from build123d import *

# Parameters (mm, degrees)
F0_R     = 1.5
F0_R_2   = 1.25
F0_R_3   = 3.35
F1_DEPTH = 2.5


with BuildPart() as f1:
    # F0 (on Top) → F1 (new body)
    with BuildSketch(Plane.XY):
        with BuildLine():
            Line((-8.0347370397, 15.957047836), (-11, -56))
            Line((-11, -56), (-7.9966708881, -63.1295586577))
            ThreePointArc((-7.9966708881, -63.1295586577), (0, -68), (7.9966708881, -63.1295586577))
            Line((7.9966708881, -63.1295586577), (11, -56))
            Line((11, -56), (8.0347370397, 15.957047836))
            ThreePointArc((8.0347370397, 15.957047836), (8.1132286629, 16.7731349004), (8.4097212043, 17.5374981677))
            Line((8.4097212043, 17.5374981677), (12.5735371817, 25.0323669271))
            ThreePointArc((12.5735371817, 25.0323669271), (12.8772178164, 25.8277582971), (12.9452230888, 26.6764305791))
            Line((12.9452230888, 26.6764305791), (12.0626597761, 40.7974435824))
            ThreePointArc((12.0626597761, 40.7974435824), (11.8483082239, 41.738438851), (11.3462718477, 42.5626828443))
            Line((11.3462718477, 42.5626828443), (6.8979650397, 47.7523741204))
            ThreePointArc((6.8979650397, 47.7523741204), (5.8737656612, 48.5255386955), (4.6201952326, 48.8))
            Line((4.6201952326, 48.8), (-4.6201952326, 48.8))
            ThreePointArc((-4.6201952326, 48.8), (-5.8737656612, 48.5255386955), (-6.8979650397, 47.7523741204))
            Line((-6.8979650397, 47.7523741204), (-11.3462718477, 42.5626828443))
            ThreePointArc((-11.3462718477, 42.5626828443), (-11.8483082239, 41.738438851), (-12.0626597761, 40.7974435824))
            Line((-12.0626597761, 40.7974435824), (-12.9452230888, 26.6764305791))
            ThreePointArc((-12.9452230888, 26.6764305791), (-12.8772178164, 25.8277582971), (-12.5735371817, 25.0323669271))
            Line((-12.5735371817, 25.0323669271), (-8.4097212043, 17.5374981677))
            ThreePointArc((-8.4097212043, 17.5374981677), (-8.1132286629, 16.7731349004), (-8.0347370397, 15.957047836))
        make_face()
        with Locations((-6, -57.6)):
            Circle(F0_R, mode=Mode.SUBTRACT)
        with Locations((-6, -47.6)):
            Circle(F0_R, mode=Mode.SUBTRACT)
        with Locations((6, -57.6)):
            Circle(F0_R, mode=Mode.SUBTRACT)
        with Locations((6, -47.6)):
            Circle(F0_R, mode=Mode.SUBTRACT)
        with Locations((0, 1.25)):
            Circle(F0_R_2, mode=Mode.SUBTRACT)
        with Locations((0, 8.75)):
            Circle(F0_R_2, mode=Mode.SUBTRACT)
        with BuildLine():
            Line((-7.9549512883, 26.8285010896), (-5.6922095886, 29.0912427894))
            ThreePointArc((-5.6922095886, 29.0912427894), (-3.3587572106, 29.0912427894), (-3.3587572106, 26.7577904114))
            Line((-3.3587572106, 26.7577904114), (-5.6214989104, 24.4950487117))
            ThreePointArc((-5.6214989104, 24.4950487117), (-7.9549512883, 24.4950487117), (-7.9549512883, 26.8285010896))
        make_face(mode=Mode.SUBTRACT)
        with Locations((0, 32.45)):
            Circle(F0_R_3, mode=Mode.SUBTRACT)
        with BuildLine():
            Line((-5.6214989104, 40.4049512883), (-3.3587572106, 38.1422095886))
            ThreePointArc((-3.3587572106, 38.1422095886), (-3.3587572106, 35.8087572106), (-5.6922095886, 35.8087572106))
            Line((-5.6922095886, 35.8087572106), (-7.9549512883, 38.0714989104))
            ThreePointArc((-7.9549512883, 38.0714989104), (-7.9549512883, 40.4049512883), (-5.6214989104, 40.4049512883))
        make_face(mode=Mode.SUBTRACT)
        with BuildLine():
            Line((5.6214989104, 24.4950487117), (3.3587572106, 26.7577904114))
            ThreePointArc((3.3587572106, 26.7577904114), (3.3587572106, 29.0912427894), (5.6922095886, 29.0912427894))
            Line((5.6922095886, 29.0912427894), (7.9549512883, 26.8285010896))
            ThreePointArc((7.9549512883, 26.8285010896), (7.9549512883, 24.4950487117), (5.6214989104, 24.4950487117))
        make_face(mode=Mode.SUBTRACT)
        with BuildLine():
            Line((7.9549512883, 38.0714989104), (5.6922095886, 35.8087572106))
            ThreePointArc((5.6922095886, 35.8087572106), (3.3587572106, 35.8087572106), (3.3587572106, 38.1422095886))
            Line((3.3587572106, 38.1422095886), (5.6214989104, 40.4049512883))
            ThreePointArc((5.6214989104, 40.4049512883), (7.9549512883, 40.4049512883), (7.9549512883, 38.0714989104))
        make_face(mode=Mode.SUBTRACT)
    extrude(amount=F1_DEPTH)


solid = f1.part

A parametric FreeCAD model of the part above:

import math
import FreeCAD as App
import Part
import Sketcher
Q = App.Units.Quantity

doc = App.newDocument("Part")
params = doc.addObject("Spreadsheet::Sheet", "Params")
for row, (alias, value) in enumerate([
    ("sketch1_diameter", "3 mm"),
    ("sketch1_radius", "9 mm"),
    ("sketch1_radius2", "3 mm"),
    ("sketch1_diameter2", "2.5 mm"),
    ("sketch1_diameter3", "6.7 mm"),
    ("pad1_length", "2.5 mm"),
], start=1):
    params.set(f"A{row}", alias)
    params.set(f"B{row}", "=" + value)
    params.setAlias(f"B{row}", alias)

body = doc.addObject("PartDesign::Body", "Body")

sketch1 = body.newObject("Sketcher::SketchObject", "Sketch")
sketch1.AttachmentSupport = (doc.getObject("XY_Plane"), [""])
sketch1.MapMode = "FlatFace"
sketch1.addGeometry([
    Part.LineSegment(App.Vector(-8, 16, 0), App.Vector(-11, -56, 0)),
    Part.LineSegment(App.Vector(-11, -56, 0), App.Vector(-8, -63.1, 0)),
    Part.ArcOfCircle(Part.Circle(App.Vector(0, -59, 0), App.Vector(0, 0, 1), 9), math.radians(-153), math.radians(-27)),
    Part.LineSegment(App.Vector(8, -63.1, 0), App.Vector(11, -56, 0)),
    Part.LineSegment(App.Vector(11, -56, 0), App.Vector(8, 16, 0)),
    Part.ArcOfCircle(Part.Circle(App.Vector(11, 16.1, 0), App.Vector(0, 0, 1), 3), math.radians(151), math.radians(182)),
    Part.LineSegment(App.Vector(8.4, 17.5, 0), App.Vector(12.6, 25, 0)),
    Part.ArcOfCircle(Part.Circle(App.Vector(10, 26.5, 0), App.Vector(0, 0, 1), 3), math.radians(-29), math.radians(4)),
    Part.LineSegment(App.Vector(12.9, 26.7, 0), App.Vector(12.1, 40.8, 0)),
    Part.ArcOfCircle(Part.Circle(App.Vector(9.1, 40.6, 0), App.Vector(0, 0, 1), 3), math.radians(4), math.radians(41)),
    Part.LineSegment(App.Vector(11.3, 42.6, 0), App.Vector(6.9, 47.8, 0)),
    Part.ArcOfCircle(Part.Circle(App.Vector(4.6, 45.8, 0), App.Vector(0, 0, 1), 3), math.radians(41), math.radians(90)),
    Part.LineSegment(App.Vector(4.6, 48.8, 0), App.Vector(-4.6, 48.8, 0)),
    Part.ArcOfCircle(Part.Circle(App.Vector(-4.6, 45.8, 0), App.Vector(0, 0, 1), 3), math.radians(90), math.radians(139)),
    Part.LineSegment(App.Vector(-6.9, 47.8, 0), App.Vector(-11.3, 42.6, 0)),
    Part.ArcOfCircle(Part.Circle(App.Vector(-9.1, 40.6, 0), App.Vector(0, 0, 1), 3), math.radians(139), math.radians(176)),
    Part.LineSegment(App.Vector(-12.1, 40.8, 0), App.Vector(-12.9, 26.7, 0)),
    Part.ArcOfCircle(Part.Circle(App.Vector(-10, 26.5, 0), App.Vector(0, 0, 1), 3), math.radians(176), math.radians(209)),
    Part.LineSegment(App.Vector(-12.6, 25, 0), App.Vector(-8.4, 17.5, 0)),
    Part.ArcOfCircle(Part.Circle(App.Vector(-11, 16.1, 0), App.Vector(0, 0, 1), 3), math.radians(-2), math.radians(29)),
    Part.Circle(App.Vector(-6, -57.6, 0), App.Vector(0, 0, 1), 1.5),
    Part.Circle(App.Vector(-6, -47.6, 0), App.Vector(0, 0, 1), 1.5),
    Part.Circle(App.Vector(6, -57.6, 0), App.Vector(0, 0, 1), 1.5),
    Part.Circle(App.Vector(6, -47.6, 0), App.Vector(0, 0, 1), 1.5),
    Part.ArcOfCircle(Part.Circle(App.Vector(-6.8, 25.7, 0), App.Vector(0, 0, 1), 1.6), math.radians(135), math.radians(315)),
    Part.LineSegment(App.Vector(-8, 26.8, 0), App.Vector(-5.7, 29.1, 0)),
    Part.ArcOfCircle(Part.Circle(App.Vector(-4.5, 27.9, 0), App.Vector(0, 0, 1), 1.6), math.radians(-45), math.radians(135)),
    Part.LineSegment(App.Vector(-3.4, 26.8, 0), App.Vector(-5.6, 24.5, 0)),
    Part.ArcOfCircle(Part.Circle(App.Vector(-6.8, 39.2, 0), App.Vector(0, 0, 1), 1.6), math.radians(45), math.radians(225)),
    Part.LineSegment(App.Vector(-5.6, 40.4, 0), App.Vector(-3.4, 38.1, 0)),
    Part.ArcOfCircle(Part.Circle(App.Vector(-4.5, 37, 0), App.Vector(0, 0, 1), 1.6), math.radians(-135), math.radians(45)),
    Part.LineSegment(App.Vector(-5.7, 35.8, 0), App.Vector(-8, 38.1, 0)),
    Part.Circle(App.Vector(0, 1.2, 0), App.Vector(0, 0, 1), 1.2),
    Part.Circle(App.Vector(0, 8.8, 0), App.Vector(0, 0, 1), 1.2),
    Part.Circle(App.Vector(0, 32.5, 0), App.Vector(0, 0, 1), 3.4),
    Part.ArcOfCircle(Part.Circle(App.Vector(6.8, 25.7, 0), App.Vector(0, 0, 1), 1.6), math.radians(-135), math.radians(45)),
    Part.LineSegment(App.Vector(5.6, 24.5, 0), App.Vector(3.4, 26.8, 0)),
    Part.ArcOfCircle(Part.Circle(App.Vector(4.5, 27.9, 0), App.Vector(0, 0, 1), 1.6), math.radians(45), math.radians(225)),
    Part.LineSegment(App.Vector(5.7, 29.1, 0), App.Vector(8, 26.8, 0)),
    Part.ArcOfCircle(Part.Circle(App.Vector(6.8, 39.2, 0), App.Vector(0, 0, 1), 1.6), math.radians(-45), math.radians(135)),
    Part.LineSegment(App.Vector(8, 38.1, 0), App.Vector(5.7, 35.8, 0)),
    Part.ArcOfCircle(Part.Circle(App.Vector(4.5, 37, 0), App.Vector(0, 0, 1), 1.6), math.radians(135), math.radians(315)),
    Part.LineSegment(App.Vector(3.4, 38.1, 0), App.Vector(5.6, 40.4, 0)),
], False)
sketch1.addConstraint([
    Sketcher.Constraint("Coincident", 0, 2, 1, 1),
    Sketcher.Constraint("Coincident", 1, 2, 2, 1),
    Sketcher.Constraint("Coincident", 2, 2, 3, 1),
    Sketcher.Constraint("Coincident", 3, 2, 4, 1),
    Sketcher.Constraint("Tangent", 4, 2, 5, 2),
    Sketcher.Constraint("Tangent", 5, 1, 6, 1),
    Sketcher.Constraint("Tangent", 6, 2, 7, 1),
    Sketcher.Constraint("Tangent", 7, 2, 8, 1),
    Sketcher.Constraint("Tangent", 8, 2, 9, 1),
    Sketcher.Constraint("Tangent", 9, 2, 10, 1),
    Sketcher.Constraint("Tangent", 10, 2, 11, 1),
    Sketcher.Constraint("Tangent", 11, 2, 12, 1),
    Sketcher.Constraint("Tangent", 12, 2, 13, 1),
    Sketcher.Constraint("Tangent", 13, 2, 14, 1),
    Sketcher.Constraint("Tangent", 14, 2, 15, 1),
    Sketcher.Constraint("Tangent", 15, 2, 16, 1),
    Sketcher.Constraint("Tangent", 16, 2, 17, 1),
    Sketcher.Constraint("Tangent", 17, 2, 18, 1),
    Sketcher.Constraint("Tangent", 18, 2, 19, 2),
    Sketcher.Constraint("Tangent", 19, 1, 0, 1),
    Sketcher.Constraint("Tangent", 24, 1, 25, 1),
    Sketcher.Constraint("Tangent", 25, 2, 26, 2),
    Sketcher.Constraint("Tangent", 26, 1, 27, 1),
    Sketcher.Constraint("Tangent", 27, 2, 24, 2),
    Sketcher.Constraint("Tangent", 28, 1, 29, 1),
    Sketcher.Constraint("Tangent", 29, 2, 30, 2),
    Sketcher.Constraint("Tangent", 30, 1, 31, 1),
    Sketcher.Constraint("Tangent", 31, 2, 28, 2),
    Sketcher.Constraint("Tangent", 35, 1, 36, 1),
    Sketcher.Constraint("Tangent", 36, 2, 37, 2),
    Sketcher.Constraint("Tangent", 37, 1, 38, 1),
    Sketcher.Constraint("Tangent", 38, 2, 35, 2),
    Sketcher.Constraint("Tangent", 39, 1, 40, 1),
    Sketcher.Constraint("Tangent", 40, 2, 41, 2),
    Sketcher.Constraint("Tangent", 41, 1, 42, 1),
    Sketcher.Constraint("Tangent", 42, 2, 39, 2),
    Sketcher.Constraint("Horizontal", 12),
    Sketcher.Constraint("Equal", 5, 7),
    Sketcher.Constraint("Equal", 7, 9),
    Sketcher.Constraint("Equal", 9, 11),
    Sketcher.Constraint("Equal", 11, 13),
    Sketcher.Constraint("Equal", 13, 15),
    Sketcher.Constraint("Equal", 15, 17),
    Sketcher.Constraint("Equal", 17, 19),
    Sketcher.Constraint("Equal", 20, 21),
    Sketcher.Constraint("Equal", 21, 22),
    Sketcher.Constraint("Equal", 22, 23),
    Sketcher.Constraint("Equal", 24, 26),
    Sketcher.Constraint("Equal", 26, 28),
    Sketcher.Constraint("Equal", 28, 30),
    Sketcher.Constraint("Equal", 32, 33),
    Sketcher.Constraint("Equal", 30, 35),
    Sketcher.Constraint("Equal", 35, 37),
    Sketcher.Constraint("Equal", 37, 39),
    Sketcher.Constraint("Equal", 39, 41),
    Sketcher.Constraint("Symmetric", 9, 3, 15, 3, -2),
    Sketcher.Constraint("Symmetric", 7, 3, 17, 3, -2),
    Sketcher.Constraint("Symmetric", 5, 3, 19, 3, -2),
    Sketcher.Constraint("Symmetric", 20, 3, 22, 3, -2),
    Sketcher.Constraint("Symmetric", 21, 3, 23, 3, -2),
    Sketcher.Constraint("Symmetric", 24, 3, 35, 3, -2),
    Sketcher.Constraint("Symmetric", 26, 3, 37, 3, -2),
    Sketcher.Constraint("Symmetric", 28, 3, 39, 3, -2),
    Sketcher.Constraint("Symmetric", 30, 3, 41, 3, -2),
    Sketcher.Constraint("Symmetric", 1, 2, 2, 2, -2),
    Sketcher.Constraint("Symmetric", 0, 2, 3, 2, -2),
    Sketcher.Constraint("PointOnObject", 32, 3, -2),
    Sketcher.Constraint("PointOnObject", 33, 3, -2),
    Sketcher.Constraint("PointOnObject", 34, 3, -2),
    Sketcher.Constraint("Perpendicular", 27, 29),
    Sketcher.Constraint("Parallel", 31, 36),
    Sketcher.Constraint("Horizontal", 10, 2, 13, 2),
    Sketcher.Constraint("Vertical", 20, 3, 21, 3),
    Sketcher.Constraint("Vertical", 24, 3, 28, 3),
    Sketcher.Constraint("Vertical", 26, 3, 30, 3),
    Sketcher.Constraint("Diameter", 20, Q("3 mm")),
    Sketcher.Constraint("Radius", 2, Q("9 mm")),
    Sketcher.Constraint("Radius", 5, Q("3 mm")),
    Sketcher.Constraint("Diameter", 32, Q("2.5 mm")),
    Sketcher.Constraint("Diameter", 34, Q("6.7 mm")),
    Sketcher.Constraint("Radius", 24, Q("1.65 mm")),
    Sketcher.Constraint("DistanceY", 2, 3, -1, 1, Q("59 mm")),
    Sketcher.Constraint("DistanceX", 20, 3, -1, 1, Q("6 mm")),
    Sketcher.Constraint("DistanceX", 0, 2, -1, 1, Q("11 mm")),
    Sketcher.Constraint("DistanceY", 0, 2, -1, 1, Q("56 mm")),
    Sketcher.Constraint("DistanceY", 20, 3, 21, 3, Q("10 mm")),
    Sketcher.Constraint("Distance", 25, Q("3.2 mm")),
    Sketcher.Constraint("DistanceY", -1, 1, 11, 3, Q("45.8 mm")),
    Sketcher.Constraint("DistanceY", 20, 3, -1, 1, Q("57.6 mm")),
    Sketcher.Constraint("DistanceY", 32, 3, 33, 3, Q("7.5 mm")),
    Sketcher.Constraint("DistanceY", -1, 1, 32, 3, Q("1.25 mm")),
    Sketcher.Constraint("DistanceY", -1, 1, 34, 3, Q("32.45 mm")),
    Sketcher.Constraint("DistanceX", 12, 2, 12, 1, Q("9.24039 mm")),
    Sketcher.Constraint("DistanceY", -1, 1, 5, 1, Q("17.537498 mm")),
    Sketcher.Constraint("DistanceY", -1, 1, 24, 1, Q("26.828501 mm")),
    Sketcher.Constraint("DistanceX", 27, 2, -1, 1, Q("5.621499 mm")),
    Sketcher.Constraint("DistanceY", -1, 1, 31, 2, Q("38.071499 mm")),
    Sketcher.Constraint("DistanceX", 5, 1, 7, 2, Q("4.535502 mm")),
    Sketcher.Constraint("DistanceY", 41, 3, 9, 2, Q("5.587199 mm")),
    Sketcher.Constraint("DistanceX", 17, 2, 19, 1, Q("4.5388 mm")),
    Sketcher.Constraint("DistanceY", 29, 2, 15, 3, Q("2.468099 mm")),
    Sketcher.Constraint("Distance", 0, Q("72.018119 mm")),
    Sketcher.Constraint("DistanceX", 1, 2, -1, 1, Q("7.996671 mm")),
])
sketch1.setExpression("Constraints[75]", "Params.sketch1_diameter")
sketch1.setExpression("Constraints[76]", "Params.sketch1_radius")
sketch1.setExpression("Constraints[77]", "Params.sketch1_radius2")
sketch1.setExpression("Constraints[78]", "Params.sketch1_diameter2")
sketch1.setExpression("Constraints[79]", "Params.sketch1_diameter3")
pad1 = body.newObject("PartDesign::Pad", "Pad")
pad1.Profile = sketch1
pad1.setExpression("Length", "Params.pad1_length")

doc.recompute()
